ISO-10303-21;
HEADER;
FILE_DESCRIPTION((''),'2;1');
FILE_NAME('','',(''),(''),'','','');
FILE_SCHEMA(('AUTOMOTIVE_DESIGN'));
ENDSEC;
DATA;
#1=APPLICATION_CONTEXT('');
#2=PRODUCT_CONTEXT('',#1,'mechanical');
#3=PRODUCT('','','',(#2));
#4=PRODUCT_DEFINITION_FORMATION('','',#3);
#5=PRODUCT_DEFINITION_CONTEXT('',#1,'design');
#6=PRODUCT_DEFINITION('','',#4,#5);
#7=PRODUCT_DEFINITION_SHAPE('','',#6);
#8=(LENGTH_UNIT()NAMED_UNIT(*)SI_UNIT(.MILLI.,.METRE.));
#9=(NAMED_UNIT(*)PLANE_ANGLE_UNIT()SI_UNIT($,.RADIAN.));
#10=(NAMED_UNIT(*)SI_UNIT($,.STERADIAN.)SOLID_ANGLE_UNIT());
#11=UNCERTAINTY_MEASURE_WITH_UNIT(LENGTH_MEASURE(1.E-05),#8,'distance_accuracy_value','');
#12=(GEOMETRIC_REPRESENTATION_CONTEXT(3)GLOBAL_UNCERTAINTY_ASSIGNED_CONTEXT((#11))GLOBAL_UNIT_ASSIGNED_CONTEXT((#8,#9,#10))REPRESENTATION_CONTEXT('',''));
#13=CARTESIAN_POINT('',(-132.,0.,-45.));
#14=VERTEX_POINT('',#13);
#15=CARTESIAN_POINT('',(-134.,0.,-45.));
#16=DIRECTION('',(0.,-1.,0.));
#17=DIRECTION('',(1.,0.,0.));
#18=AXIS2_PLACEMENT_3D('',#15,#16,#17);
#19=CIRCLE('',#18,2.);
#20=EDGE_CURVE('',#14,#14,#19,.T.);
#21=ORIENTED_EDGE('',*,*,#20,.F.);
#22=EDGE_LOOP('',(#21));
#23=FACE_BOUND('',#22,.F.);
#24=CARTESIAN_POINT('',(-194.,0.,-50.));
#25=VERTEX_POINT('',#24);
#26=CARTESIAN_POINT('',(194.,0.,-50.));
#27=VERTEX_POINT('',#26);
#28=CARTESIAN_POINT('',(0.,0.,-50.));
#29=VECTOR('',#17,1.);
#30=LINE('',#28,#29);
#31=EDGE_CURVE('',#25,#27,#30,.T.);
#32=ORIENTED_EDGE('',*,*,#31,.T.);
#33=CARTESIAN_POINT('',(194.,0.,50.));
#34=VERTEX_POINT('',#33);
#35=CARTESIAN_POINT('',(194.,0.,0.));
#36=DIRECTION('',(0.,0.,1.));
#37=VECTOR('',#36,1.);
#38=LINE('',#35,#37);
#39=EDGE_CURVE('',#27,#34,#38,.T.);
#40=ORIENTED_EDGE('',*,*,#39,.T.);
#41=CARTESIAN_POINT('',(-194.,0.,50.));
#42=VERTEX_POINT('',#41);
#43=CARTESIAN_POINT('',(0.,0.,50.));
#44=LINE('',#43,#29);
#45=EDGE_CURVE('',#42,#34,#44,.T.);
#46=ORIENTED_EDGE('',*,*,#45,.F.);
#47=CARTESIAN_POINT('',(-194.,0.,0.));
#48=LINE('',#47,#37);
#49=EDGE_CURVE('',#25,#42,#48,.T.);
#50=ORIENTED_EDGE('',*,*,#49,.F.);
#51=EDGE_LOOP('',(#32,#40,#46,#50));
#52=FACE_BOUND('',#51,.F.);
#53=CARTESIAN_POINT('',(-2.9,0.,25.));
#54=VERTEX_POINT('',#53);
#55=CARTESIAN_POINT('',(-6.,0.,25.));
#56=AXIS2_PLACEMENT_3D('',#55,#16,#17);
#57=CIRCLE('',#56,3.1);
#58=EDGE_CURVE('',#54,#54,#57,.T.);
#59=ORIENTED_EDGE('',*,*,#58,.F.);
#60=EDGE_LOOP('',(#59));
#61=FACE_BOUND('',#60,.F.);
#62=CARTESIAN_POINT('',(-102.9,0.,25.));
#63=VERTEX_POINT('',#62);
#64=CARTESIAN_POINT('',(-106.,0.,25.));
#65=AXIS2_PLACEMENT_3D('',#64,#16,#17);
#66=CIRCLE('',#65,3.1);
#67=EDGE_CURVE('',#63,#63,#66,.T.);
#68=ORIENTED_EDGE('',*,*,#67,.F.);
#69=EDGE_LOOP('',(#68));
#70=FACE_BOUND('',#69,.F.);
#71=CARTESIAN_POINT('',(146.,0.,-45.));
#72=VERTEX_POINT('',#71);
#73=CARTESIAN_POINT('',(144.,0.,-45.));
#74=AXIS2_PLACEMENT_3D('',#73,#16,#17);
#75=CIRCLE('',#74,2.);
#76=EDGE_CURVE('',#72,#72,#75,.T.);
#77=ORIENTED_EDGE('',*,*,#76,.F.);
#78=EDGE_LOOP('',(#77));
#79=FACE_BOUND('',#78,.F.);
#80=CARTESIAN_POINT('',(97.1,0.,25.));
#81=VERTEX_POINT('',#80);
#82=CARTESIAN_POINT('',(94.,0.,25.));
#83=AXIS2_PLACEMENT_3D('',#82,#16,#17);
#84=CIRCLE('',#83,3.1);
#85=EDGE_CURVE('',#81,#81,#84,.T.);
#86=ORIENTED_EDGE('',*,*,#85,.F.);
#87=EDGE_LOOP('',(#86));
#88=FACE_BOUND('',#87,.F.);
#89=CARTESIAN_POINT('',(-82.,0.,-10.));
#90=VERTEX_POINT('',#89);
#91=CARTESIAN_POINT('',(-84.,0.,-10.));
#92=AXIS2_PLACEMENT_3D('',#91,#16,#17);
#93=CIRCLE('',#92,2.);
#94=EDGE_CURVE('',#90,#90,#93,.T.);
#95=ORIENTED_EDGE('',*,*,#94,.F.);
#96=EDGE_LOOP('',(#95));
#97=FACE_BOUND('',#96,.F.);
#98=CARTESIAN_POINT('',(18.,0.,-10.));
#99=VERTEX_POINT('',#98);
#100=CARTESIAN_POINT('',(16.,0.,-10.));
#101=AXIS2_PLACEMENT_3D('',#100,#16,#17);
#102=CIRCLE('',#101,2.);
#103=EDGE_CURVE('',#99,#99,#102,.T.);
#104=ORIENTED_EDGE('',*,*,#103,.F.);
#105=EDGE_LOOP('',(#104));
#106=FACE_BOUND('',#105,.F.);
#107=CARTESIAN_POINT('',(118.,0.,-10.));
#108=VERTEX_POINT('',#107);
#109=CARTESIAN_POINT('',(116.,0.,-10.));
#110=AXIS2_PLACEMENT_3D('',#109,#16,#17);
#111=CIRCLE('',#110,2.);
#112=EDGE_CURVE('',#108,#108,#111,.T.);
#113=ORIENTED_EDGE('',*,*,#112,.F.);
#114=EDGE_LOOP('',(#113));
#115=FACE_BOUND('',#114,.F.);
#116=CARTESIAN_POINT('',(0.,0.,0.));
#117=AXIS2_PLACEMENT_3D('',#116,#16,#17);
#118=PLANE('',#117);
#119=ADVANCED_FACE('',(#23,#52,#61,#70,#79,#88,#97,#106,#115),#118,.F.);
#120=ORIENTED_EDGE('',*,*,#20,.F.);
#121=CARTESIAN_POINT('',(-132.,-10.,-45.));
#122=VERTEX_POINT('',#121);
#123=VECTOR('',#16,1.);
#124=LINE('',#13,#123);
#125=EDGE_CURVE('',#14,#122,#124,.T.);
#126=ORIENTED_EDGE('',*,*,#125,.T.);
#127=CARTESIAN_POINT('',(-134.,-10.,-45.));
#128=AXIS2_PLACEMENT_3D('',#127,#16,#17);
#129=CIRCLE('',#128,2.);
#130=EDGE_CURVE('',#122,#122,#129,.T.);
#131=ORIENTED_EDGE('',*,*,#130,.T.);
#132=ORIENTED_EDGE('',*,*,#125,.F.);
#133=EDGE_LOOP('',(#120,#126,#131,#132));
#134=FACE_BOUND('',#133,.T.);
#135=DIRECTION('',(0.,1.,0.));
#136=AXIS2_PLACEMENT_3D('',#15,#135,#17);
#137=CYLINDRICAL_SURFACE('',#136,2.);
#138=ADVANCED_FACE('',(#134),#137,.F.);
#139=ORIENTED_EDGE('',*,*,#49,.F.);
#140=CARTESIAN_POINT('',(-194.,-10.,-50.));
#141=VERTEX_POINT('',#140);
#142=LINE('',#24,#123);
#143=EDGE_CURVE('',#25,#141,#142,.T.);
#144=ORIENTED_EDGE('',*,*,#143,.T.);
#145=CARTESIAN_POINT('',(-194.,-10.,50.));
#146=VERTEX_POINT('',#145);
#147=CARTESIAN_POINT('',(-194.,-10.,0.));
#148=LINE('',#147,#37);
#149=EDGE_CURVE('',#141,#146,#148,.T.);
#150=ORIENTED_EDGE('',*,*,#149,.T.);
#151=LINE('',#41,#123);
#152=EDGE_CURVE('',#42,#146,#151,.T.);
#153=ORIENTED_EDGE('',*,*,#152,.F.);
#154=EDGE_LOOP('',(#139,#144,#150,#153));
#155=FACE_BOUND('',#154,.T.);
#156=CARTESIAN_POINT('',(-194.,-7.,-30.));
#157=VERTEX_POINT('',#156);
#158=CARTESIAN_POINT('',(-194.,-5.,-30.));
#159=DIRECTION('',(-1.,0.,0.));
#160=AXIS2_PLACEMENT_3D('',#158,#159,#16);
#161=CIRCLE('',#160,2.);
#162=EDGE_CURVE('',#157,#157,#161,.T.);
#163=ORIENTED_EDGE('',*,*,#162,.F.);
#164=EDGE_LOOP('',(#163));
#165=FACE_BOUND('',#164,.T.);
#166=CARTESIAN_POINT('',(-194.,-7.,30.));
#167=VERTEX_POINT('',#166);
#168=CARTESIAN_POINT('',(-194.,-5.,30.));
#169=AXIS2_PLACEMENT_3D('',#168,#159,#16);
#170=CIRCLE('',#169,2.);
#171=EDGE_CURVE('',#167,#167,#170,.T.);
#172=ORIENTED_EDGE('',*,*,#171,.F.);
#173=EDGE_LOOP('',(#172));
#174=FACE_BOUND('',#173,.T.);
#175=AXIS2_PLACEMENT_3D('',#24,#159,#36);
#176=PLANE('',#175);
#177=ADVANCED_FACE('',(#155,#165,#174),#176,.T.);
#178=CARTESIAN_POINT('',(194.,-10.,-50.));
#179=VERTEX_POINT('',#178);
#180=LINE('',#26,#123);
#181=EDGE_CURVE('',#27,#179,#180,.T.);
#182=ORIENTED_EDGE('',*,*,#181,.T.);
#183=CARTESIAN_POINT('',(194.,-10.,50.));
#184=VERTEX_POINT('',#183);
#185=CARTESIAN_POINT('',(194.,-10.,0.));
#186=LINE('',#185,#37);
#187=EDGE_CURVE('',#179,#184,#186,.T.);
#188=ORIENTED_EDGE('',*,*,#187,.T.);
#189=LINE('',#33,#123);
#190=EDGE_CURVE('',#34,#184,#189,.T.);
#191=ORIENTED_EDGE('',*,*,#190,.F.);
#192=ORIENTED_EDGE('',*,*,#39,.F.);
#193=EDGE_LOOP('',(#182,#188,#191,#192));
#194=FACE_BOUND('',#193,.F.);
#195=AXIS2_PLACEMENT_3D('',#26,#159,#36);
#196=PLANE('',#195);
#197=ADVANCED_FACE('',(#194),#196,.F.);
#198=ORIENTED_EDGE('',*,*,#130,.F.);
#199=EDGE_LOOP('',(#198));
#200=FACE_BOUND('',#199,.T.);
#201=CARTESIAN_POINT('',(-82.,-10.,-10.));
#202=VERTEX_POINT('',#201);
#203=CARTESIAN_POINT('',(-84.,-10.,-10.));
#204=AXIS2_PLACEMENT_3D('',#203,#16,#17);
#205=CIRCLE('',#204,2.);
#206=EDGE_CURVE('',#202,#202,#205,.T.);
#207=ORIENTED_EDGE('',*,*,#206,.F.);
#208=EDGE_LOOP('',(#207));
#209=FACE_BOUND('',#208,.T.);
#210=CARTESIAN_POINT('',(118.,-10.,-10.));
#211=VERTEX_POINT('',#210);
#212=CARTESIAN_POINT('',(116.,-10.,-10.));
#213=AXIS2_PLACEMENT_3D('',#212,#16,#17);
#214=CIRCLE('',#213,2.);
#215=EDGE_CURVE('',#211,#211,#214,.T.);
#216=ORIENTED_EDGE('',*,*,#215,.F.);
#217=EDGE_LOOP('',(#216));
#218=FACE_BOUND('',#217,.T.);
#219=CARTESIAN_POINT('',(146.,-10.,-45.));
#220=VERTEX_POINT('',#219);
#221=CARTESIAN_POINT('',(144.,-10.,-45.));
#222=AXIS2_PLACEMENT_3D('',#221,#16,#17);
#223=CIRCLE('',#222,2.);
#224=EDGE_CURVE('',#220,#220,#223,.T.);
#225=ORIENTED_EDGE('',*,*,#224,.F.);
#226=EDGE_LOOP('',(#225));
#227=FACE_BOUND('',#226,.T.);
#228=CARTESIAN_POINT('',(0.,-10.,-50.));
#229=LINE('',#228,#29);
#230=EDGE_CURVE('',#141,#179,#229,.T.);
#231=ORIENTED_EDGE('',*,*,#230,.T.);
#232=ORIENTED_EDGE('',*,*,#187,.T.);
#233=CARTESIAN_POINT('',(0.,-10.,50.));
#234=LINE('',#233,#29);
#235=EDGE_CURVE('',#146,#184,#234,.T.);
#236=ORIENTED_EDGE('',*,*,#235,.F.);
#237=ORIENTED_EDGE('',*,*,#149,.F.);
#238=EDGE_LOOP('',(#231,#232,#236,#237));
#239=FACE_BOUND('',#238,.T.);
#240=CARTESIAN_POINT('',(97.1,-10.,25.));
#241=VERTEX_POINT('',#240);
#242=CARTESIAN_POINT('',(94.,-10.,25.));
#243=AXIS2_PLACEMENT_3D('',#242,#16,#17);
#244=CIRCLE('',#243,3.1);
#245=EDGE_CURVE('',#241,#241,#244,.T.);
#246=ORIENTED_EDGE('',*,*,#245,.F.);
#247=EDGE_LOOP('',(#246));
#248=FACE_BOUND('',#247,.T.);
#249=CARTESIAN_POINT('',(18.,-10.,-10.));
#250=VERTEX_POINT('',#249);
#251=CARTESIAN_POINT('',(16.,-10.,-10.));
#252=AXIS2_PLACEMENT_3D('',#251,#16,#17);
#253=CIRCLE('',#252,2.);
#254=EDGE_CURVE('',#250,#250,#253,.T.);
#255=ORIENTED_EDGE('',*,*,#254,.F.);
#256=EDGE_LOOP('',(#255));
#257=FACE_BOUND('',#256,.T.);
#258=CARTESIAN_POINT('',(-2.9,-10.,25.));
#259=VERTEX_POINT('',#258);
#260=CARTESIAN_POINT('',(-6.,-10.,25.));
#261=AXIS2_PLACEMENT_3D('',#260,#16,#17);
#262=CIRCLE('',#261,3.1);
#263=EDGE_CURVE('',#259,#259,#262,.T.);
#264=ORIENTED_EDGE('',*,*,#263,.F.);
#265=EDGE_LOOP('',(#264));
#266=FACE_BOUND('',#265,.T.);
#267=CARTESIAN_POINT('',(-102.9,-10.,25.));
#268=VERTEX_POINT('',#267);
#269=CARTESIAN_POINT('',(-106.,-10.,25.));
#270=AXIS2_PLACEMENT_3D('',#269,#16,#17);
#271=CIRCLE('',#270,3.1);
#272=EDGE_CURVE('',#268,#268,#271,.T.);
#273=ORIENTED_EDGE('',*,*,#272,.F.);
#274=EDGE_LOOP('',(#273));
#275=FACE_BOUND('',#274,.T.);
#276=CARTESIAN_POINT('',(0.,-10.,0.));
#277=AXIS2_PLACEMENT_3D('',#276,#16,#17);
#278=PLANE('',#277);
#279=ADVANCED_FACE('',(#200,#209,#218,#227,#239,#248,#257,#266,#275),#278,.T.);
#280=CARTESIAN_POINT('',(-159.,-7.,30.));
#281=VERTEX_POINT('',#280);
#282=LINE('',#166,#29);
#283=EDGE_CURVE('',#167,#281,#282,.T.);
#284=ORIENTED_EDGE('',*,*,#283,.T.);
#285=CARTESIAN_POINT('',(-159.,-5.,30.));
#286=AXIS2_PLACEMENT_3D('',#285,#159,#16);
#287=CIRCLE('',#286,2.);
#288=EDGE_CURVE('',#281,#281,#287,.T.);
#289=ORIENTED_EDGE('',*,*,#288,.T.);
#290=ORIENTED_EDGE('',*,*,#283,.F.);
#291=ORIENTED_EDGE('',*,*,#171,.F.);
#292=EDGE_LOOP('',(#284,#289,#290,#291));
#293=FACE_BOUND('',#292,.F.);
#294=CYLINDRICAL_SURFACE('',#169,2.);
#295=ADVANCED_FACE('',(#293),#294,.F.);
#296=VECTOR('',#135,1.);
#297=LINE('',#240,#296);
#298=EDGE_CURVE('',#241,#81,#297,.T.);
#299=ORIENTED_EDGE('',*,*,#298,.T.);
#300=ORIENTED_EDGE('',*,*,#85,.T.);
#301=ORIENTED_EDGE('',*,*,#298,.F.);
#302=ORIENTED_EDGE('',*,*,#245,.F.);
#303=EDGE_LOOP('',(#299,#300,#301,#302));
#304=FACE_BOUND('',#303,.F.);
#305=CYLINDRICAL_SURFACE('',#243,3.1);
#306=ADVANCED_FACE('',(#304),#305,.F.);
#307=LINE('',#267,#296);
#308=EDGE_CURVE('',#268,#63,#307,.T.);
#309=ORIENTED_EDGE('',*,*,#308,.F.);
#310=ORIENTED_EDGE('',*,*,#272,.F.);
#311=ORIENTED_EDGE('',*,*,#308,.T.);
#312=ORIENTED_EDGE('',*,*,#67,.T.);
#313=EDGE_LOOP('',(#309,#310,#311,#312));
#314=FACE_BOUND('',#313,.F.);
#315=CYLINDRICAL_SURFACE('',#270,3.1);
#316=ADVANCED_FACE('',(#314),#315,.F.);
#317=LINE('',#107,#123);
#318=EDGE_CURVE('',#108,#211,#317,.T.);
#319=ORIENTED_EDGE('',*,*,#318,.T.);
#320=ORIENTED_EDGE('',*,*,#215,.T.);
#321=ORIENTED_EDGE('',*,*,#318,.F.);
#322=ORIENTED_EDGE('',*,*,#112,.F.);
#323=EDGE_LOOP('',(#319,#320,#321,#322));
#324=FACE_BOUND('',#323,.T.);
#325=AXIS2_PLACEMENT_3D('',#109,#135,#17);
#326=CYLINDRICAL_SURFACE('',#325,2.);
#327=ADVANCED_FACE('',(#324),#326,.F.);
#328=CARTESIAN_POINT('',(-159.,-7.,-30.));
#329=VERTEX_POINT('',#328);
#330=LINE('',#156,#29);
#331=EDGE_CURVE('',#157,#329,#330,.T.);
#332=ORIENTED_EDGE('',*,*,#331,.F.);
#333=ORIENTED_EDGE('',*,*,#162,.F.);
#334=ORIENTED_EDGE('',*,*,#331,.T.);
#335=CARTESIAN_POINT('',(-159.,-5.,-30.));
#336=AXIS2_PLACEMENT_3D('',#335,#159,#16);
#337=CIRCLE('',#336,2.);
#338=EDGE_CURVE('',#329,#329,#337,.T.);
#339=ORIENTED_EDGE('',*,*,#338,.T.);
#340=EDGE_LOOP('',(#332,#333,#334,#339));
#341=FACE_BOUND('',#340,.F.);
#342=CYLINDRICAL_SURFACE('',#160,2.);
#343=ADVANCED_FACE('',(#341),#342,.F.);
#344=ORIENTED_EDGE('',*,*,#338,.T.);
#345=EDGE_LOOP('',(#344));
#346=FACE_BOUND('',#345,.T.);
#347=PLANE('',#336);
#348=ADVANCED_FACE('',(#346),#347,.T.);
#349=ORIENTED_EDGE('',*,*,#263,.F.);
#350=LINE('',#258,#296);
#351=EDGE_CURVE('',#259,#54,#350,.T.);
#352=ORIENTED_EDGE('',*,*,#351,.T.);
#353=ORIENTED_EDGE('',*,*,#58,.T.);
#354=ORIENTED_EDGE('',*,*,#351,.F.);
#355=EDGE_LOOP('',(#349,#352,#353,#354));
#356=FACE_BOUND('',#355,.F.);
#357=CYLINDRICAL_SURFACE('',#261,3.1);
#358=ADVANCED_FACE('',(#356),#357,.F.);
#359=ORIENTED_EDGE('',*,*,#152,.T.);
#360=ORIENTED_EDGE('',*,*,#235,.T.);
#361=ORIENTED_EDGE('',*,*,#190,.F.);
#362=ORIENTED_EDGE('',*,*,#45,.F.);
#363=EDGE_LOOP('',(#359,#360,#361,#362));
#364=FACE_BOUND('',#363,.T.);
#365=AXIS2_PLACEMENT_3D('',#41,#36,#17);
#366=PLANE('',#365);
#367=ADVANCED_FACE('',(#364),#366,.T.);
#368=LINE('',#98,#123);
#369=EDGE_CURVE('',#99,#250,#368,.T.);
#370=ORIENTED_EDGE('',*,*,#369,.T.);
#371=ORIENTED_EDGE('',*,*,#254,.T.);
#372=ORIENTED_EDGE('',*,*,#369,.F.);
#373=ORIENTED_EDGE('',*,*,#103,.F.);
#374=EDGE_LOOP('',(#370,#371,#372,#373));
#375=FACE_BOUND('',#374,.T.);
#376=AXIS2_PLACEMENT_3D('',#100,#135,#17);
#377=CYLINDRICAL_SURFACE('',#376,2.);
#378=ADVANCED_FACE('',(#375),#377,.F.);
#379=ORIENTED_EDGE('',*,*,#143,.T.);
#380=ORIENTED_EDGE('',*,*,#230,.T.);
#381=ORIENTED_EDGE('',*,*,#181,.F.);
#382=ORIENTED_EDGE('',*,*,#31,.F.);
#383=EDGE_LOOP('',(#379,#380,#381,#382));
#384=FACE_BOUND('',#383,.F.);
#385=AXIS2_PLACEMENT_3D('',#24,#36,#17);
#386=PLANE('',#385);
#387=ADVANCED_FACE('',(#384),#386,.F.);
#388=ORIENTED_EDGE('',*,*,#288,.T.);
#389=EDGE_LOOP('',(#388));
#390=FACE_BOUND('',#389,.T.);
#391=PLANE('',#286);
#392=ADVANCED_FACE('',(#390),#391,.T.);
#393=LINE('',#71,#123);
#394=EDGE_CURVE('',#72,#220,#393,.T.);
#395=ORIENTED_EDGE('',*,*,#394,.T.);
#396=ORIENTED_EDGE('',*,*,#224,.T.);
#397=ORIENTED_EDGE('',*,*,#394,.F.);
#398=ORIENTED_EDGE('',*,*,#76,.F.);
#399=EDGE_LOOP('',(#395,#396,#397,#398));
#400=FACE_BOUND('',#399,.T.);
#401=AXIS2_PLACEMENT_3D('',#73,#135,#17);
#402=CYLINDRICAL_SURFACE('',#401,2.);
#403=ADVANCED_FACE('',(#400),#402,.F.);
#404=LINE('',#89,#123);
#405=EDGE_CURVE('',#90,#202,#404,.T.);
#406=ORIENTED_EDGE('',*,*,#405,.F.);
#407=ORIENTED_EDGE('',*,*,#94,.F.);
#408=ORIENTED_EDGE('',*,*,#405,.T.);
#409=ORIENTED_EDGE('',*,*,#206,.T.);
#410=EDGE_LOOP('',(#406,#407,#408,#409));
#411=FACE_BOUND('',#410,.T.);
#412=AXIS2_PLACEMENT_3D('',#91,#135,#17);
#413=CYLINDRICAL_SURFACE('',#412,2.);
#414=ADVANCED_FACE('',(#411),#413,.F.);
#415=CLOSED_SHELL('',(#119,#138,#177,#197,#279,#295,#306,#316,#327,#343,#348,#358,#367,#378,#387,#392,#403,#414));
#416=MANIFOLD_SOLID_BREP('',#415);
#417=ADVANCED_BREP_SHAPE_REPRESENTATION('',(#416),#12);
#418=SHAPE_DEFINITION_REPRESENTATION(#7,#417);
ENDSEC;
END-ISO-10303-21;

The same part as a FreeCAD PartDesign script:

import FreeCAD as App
import Part
import Sketcher
from FreeCAD import Vector

doc = App.newDocument("Part")
params = doc.addObject("Spreadsheet::Sheet", "Params")
for row, (alias, value) in enumerate([
    ("sketch1_diameter", "4 mm"),
    ("sketch1_width", "388 mm"),
    ("sketch1_height", "100 mm"),
    ("pad1_length", "10 mm"),
    ("sketch2_diameter", "6.2 mm"),
    ("pocket1_length", "25 mm"),
    ("sketch3_diameter", "4 mm"),
    ("pocket2_length", "35 mm"),
], start=1):
    params.set(f"A{row}", alias)
    params.set(f"B{row}", "=" + value)
    params.setAlias(f"B{row}", alias)

body = doc.addObject("PartDesign::Body", "Body")

# Sketch on XZ plane
sketch1 = body.newObject("Sketcher::SketchObject", "Sketch")
sketch1.AttachmentSupport = (doc.getObject("XZ_Plane"), [""])
sketch1.MapMode = "FlatFace"
sketch1.addGeometry(Part.LineSegment(Vector(-194, 50, 0), Vector(-194, -50, 0)), False)
sketch1.addGeometry(Part.LineSegment(Vector(-194, -50, 0), Vector(194, -50, 0)), False)
sketch1.addGeometry(Part.LineSegment(Vector(194, -50, 0), Vector(194, 50, 0)), False)
sketch1.addGeometry(Part.LineSegment(Vector(194, 50, 0), Vector(-194, 50, 0)), False)
sketch1.addGeometry(Part.Circle(Vector(-134, -45, 0), Vector(0, 0, 1), 2), False)
sketch1.addGeometry(Part.Circle(Vector(144, -45, 0), Vector(0, 0, 1), 2), False)
sketch1.addGeometry(Part.Circle(Vector(-84, -10, 0), Vector(0, 0, 1), 2), False)
sketch1.addGeometry(Part.Circle(Vector(16, -10, 0), Vector(0, 0, 1), 2), False)
sketch1.addGeometry(Part.Circle(Vector(116, -10, 0), Vector(0, 0, 1), 2), False)
sketch1.addConstraint(Sketcher.Constraint("Coincident", 0, 2, 1, 1))
sketch1.addConstraint(Sketcher.Constraint("Coincident", 1, 2, 2, 1))
sketch1.addConstraint(Sketcher.Constraint("Coincident", 2, 2, 3, 1))
sketch1.addConstraint(Sketcher.Constraint("Coincident", 3, 2, 0, 1))
sketch1.addConstraint(Sketcher.Constraint("Vertical", 0))
sketch1.addConstraint(Sketcher.Constraint("Horizontal", 1))
sketch1.addConstraint(Sketcher.Constraint("Vertical", 2))
sketch1.addConstraint(Sketcher.Constraint("Horizontal", 3))
sketch1.addConstraint(Sketcher.Constraint("Equal", 4, 5))
sketch1.addConstraint(Sketcher.Constraint("Equal", 5, 6))
sketch1.addConstraint(Sketcher.Constraint("Equal", 6, 7))
sketch1.addConstraint(Sketcher.Constraint("Equal", 7, 8))
sketch1.addConstraint(Sketcher.Constraint("Symmetric", 0, 2, 2, 2, -1, 1))
sketch1.addConstraint(Sketcher.Constraint("Horizontal", 4, 3, 5, 3))
sketch1.addConstraint(Sketcher.Constraint("Horizontal", 6, 3, 7, 3))
sketch1.addConstraint(Sketcher.Constraint("Horizontal", 7, 3, 8, 3))
sketch1.addConstraint(Sketcher.Constraint("Diameter", 4, 4.0))
sketch1.addConstraint(Sketcher.Constraint("DistanceX", 1, 1, 1, 2, 388.0))
sketch1.addConstraint(Sketcher.Constraint("DistanceY", 0, 2, 0, 1, 100.0))
sketch1.addConstraint(Sketcher.Constraint("DistanceX", 4, 3, -1, 1, 134.0))
sketch1.addConstraint(Sketcher.Constraint("DistanceY", 4, 3, -1, 1, 45.0))
sketch1.addConstraint(Sketcher.Constraint("DistanceX", -1, 1, 5, 3, 144.0))
sketch1.addConstraint(Sketcher.Constraint("DistanceX", 6, 3, -1, 1, 84.0))
sketch1.addConstraint(Sketcher.Constraint("DistanceY", 6, 3, -1, 1, 10.0))
sketch1.addConstraint(Sketcher.Constraint("DistanceX", -1, 1, 7, 3, 16.0))
sketch1.addConstraint(Sketcher.Constraint("DistanceX", -1, 1, 8, 3, 116.0))
sketch1.setExpression("Constraints[16]", "Params.sketch1_diameter")
sketch1.setExpression("Constraints[17]", "Params.sketch1_width")
sketch1.setExpression("Constraints[18]", "Params.sketch1_height")
pad1 = body.newObject("PartDesign::Pad", "Pad")
pad1.Profile = sketch1
pad1.setExpression("Length", "Params.pad1_length")

# Sketch on XZ plane
sketch2 = body.newObject("Sketcher::SketchObject", "Sketch001")
sketch2.AttachmentSupport = (doc.getObject("XZ_Plane"), [""])
sketch2.MapMode = "FlatFace"
sketch2.AttachmentOffset = App.Placement(Vector(0, 0, 10), App.Rotation())
sketch2.addGeometry(Part.Circle(Vector(-6, 25, 0), Vector(0, 0, 1), 3.1), False)
sketch2.addGeometry(Part.Circle(Vector(94, 25, 0), Vector(0, 0, 1), 3.1), False)
sketch2.addGeometry(Part.Circle(Vector(-106, 25, 0), Vector(0, 0, 1), 3.1), False)
sketch2.addConstraint(Sketcher.Constraint("Equal", 0, 1))
sketch2.addConstraint(Sketcher.Constraint("Equal", 1, 2))
sketch2.addConstraint(Sketcher.Constraint("Horizontal", 0, 3, 1, 3))
sketch2.addConstraint(Sketcher.Constraint("Horizontal", 1, 3, 2, 3))
sketch2.addConstraint(Sketcher.Constraint("Diameter", 0, 6.2))
sketch2.addConstraint(Sketcher.Constraint("DistanceX", 0, 3, -1, 1, 6.0))
sketch2.addConstraint(Sketcher.Constraint("DistanceY", -1, 1, 0, 3, 25.0))
sketch2.addConstraint(Sketcher.Constraint("DistanceX", -1, 1, 1, 3, 94.0))
sketch2.addConstraint(Sketcher.Constraint("DistanceX", 2, 3, -1, 1, 106.0))
sketch2.setExpression("Constraints[4]", "Params.sketch2_diameter")
pocket1 = body.newObject("PartDesign::Pocket", "Pocket")
pocket1.Profile = sketch2
pocket1.setExpression("Length", "Params.pocket1_length")

# Sketch on YZ plane
sketch3 = body.newObject("Sketcher::SketchObject", "Sketch002")
sketch3.AttachmentSupport = (doc.getObject("YZ_Plane"), [""])
sketch3.MapMode = "FlatFace"
sketch3.AttachmentOffset = App.Placement(Vector(0, 0, -194), App.Rotation())
sketch3.addGeometry(Part.Circle(Vector(-5, -30, 0), Vector(0, 0, 1), 2), False)
sketch3.addGeometry(Part.Circle(Vector(-5, 30, 0), Vector(0, 0, 1), 2), False)
sketch3.addConstraint(Sketcher.Constraint("Equal", 0, 1))
sketch3.addConstraint(Sketcher.Constraint("Symmetric", 0, 3, 1, 3, -1))
sketch3.addConstraint(Sketcher.Constraint("Diameter", 0, 4.0))
sketch3.addConstraint(Sketcher.Constraint("DistanceX", 0, 3, -1, 1, 5.0))
sketch3.addConstraint(Sketcher.Constraint("DistanceY", 0, 3, -1, 1, 30.0))
sketch3.setExpression("Constraints[2]", "Params.sketch3_diameter")
pocket2 = body.newObject("PartDesign::Pocket", "Pocket001")
pocket2.Profile = sketch3
pocket2.setExpression("Length", "Params.pocket2_length")
pocket2.Reversed = True

doc.recompute()
